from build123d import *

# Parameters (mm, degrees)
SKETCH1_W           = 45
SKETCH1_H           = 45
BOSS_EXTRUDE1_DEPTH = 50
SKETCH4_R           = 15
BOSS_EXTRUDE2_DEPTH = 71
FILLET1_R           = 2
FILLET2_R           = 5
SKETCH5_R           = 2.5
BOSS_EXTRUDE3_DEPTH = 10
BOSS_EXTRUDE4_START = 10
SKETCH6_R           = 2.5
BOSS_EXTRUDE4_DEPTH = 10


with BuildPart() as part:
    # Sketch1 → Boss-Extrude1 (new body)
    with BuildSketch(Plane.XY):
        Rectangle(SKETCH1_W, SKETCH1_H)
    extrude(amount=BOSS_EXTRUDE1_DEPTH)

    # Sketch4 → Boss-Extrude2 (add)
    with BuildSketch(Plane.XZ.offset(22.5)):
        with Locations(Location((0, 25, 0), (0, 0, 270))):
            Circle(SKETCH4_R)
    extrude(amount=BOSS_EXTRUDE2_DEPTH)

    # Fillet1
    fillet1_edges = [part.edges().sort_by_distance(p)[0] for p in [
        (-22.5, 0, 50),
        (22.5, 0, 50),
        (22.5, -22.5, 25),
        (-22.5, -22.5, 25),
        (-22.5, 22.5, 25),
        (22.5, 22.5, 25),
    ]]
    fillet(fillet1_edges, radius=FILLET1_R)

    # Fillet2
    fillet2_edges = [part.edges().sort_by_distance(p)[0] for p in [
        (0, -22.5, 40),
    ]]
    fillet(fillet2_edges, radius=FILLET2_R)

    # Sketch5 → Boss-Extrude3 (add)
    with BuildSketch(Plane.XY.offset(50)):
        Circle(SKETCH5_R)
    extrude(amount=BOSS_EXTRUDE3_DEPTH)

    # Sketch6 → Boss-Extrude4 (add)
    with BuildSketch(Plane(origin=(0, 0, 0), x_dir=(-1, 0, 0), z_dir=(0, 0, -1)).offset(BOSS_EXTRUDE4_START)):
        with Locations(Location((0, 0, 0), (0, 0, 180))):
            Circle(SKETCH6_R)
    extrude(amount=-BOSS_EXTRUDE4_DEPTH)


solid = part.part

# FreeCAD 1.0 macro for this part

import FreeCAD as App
import Part
import Sketcher
Q = App.Units.Quantity


def edges_at(feature, points):
    """Names of the edges that pass closest to the given points."""
    edges = feature.Shape.Edges
    near = lambda p: min(range(len(edges)), key=lambda i: edges[i].distToShape(Part.Vertex(*p))[0])
    return sorted({f"Edge{near(p) + 1}" for p in points})


def add_polygon(sketch, points):
    """Adds a closed chain of lines whose ends are joined by coincident constraints."""
    first, n = sketch.GeometryCount, len(points)
    for a, b in zip(points, points[1:] + points[:1]):
        sketch.addGeometry(Part.LineSegment(App.Vector(*a, 0), App.Vector(*b, 0)), False)
    for i in range(n):
        sketch.addConstraint(Sketcher.Constraint("Coincident", first + i, 2, first + (i + 1) % n, 1))

doc = App.newDocument("Part")
body = doc.addObject("PartDesign::Body", "Body")

sketch1 = body.newObject("Sketcher::SketchObject", "Sketch")
sketch1.AttachmentSupport = (doc.getObject("XY_Plane"), [""])
sketch1.MapMode = "FlatFace"
add_polygon(sketch1, [(-22, 22), (-22, -22), (22, -22), (22, 22)])
sketch1.addConstraint([
    Sketcher.Constraint("Vertical", 0),
    Sketcher.Constraint("Horizontal", 1),
    Sketcher.Constraint("Vertical", 2),
    Sketcher.Constraint("Horizontal", 3),
    Sketcher.Constraint("Symmetric", 0, 2, 2, 2, -1, 1),
    Sketcher.Constraint("Equal", 3, 0),
    Sketcher.Constraint("DistanceX", 1, 1, 1, 2, Q("45 mm")),
])
pad1 = body.newObject("PartDesign::Pad", "Pad")
pad1.Profile = sketch1
pad1.Length = 50

sketch2 = body.newObject("Sketcher::SketchObject", "Sketch001")
sketch2.AttachmentSupport = (doc.getObject("XZ_Plane"), [""])
sketch2.MapMode = "FlatFace"
sketch2.AttachmentOffset = App.Placement(App.Vector(0, 0, 22.5), App.Rotation())
sketch2.addGeometry(Part.Circle(App.Vector(0, 25, 0), App.Vector(0, 0, 1), 15), False)
sketch2.addConstraint([
    Sketcher.Constraint("PointOnObject", 0, 3, -2),
    Sketcher.Constraint("Diameter", 0, Q("30 mm")),
    Sketcher.Constraint("DistanceY", -1, 1, 0, 3, Q("25 mm")),
])
pad2 = body.newObject("PartDesign::Pad", "Pad001")
pad2.Profile = sketch2
pad2.Length = 71
doc.recompute()

fillet = body.newObject("PartDesign::Fillet", "Fillet")
fillet.Base = (pad2, edges_at(pad2, [
    (-22.5, 0, 50),
    (22.5, 0, 50),
    (22.5, -22.5, 25),
    (-22.5, -22.5, 25),
    (-22.5, 22.5, 25),
    (22.5, 22.5, 25),
]))
fillet.Radius = 2
doc.recompute()

fillet2 = body.newObject("PartDesign::Fillet", "Fillet001")
fillet2.Base = (fillet, edges_at(fillet, [(0, -22.5, 40)]))
fillet2.Radius = 5

sketch3 = body.newObject("Sketcher::SketchObject", "Sketch002")
sketch3.AttachmentSupport = (doc.getObject("XY_Plane"), [""])
sketch3.MapMode = "FlatFace"
sketch3.AttachmentOffset = App.Placement(App.Vector(0, 0, 50), App.Rotation())
sketch3.addGeometry(Part.Circle(App.Vector(0, 0, 0), App.Vector(0, 0, 1), 2.5), False)
sketch3.addConstraint([
    Sketcher.Constraint("Coincident", 0, 3, -1, 1),
    Sketcher.Constraint("Diameter", 0, Q("5 mm")),
])
pad3 = body.newObject("PartDesign::Pad", "Pad002")
pad3.Profile = sketch3
pad3.Length = 10

sketch4 = body.newObject("Sketcher::SketchObject", "Sketch003")
sketch4.AttachmentSupport = (doc.getObject("XY_Plane"), [""])
sketch4.MapMode = "FlatFace"
sketch4.AttachmentOffset = App.Placement(App.Vector(0, 0, -10), App.Rotation())
sketch4.addGeometry(Part.Circle(App.Vector(0, 0, 0), App.Vector(0, 0, 1), 2.5), False)
sketch4.addConstraint([
    Sketcher.Constraint("Coincident", 0, 3, -1, 1),
    Sketcher.Constraint("Diameter", 0, Q("5 mm")),
])
pad4 = body.newObject("PartDesign::Pad", "Pad003")
pad4.Profile = sketch4
pad4.Length = 10

doc.recompute()
